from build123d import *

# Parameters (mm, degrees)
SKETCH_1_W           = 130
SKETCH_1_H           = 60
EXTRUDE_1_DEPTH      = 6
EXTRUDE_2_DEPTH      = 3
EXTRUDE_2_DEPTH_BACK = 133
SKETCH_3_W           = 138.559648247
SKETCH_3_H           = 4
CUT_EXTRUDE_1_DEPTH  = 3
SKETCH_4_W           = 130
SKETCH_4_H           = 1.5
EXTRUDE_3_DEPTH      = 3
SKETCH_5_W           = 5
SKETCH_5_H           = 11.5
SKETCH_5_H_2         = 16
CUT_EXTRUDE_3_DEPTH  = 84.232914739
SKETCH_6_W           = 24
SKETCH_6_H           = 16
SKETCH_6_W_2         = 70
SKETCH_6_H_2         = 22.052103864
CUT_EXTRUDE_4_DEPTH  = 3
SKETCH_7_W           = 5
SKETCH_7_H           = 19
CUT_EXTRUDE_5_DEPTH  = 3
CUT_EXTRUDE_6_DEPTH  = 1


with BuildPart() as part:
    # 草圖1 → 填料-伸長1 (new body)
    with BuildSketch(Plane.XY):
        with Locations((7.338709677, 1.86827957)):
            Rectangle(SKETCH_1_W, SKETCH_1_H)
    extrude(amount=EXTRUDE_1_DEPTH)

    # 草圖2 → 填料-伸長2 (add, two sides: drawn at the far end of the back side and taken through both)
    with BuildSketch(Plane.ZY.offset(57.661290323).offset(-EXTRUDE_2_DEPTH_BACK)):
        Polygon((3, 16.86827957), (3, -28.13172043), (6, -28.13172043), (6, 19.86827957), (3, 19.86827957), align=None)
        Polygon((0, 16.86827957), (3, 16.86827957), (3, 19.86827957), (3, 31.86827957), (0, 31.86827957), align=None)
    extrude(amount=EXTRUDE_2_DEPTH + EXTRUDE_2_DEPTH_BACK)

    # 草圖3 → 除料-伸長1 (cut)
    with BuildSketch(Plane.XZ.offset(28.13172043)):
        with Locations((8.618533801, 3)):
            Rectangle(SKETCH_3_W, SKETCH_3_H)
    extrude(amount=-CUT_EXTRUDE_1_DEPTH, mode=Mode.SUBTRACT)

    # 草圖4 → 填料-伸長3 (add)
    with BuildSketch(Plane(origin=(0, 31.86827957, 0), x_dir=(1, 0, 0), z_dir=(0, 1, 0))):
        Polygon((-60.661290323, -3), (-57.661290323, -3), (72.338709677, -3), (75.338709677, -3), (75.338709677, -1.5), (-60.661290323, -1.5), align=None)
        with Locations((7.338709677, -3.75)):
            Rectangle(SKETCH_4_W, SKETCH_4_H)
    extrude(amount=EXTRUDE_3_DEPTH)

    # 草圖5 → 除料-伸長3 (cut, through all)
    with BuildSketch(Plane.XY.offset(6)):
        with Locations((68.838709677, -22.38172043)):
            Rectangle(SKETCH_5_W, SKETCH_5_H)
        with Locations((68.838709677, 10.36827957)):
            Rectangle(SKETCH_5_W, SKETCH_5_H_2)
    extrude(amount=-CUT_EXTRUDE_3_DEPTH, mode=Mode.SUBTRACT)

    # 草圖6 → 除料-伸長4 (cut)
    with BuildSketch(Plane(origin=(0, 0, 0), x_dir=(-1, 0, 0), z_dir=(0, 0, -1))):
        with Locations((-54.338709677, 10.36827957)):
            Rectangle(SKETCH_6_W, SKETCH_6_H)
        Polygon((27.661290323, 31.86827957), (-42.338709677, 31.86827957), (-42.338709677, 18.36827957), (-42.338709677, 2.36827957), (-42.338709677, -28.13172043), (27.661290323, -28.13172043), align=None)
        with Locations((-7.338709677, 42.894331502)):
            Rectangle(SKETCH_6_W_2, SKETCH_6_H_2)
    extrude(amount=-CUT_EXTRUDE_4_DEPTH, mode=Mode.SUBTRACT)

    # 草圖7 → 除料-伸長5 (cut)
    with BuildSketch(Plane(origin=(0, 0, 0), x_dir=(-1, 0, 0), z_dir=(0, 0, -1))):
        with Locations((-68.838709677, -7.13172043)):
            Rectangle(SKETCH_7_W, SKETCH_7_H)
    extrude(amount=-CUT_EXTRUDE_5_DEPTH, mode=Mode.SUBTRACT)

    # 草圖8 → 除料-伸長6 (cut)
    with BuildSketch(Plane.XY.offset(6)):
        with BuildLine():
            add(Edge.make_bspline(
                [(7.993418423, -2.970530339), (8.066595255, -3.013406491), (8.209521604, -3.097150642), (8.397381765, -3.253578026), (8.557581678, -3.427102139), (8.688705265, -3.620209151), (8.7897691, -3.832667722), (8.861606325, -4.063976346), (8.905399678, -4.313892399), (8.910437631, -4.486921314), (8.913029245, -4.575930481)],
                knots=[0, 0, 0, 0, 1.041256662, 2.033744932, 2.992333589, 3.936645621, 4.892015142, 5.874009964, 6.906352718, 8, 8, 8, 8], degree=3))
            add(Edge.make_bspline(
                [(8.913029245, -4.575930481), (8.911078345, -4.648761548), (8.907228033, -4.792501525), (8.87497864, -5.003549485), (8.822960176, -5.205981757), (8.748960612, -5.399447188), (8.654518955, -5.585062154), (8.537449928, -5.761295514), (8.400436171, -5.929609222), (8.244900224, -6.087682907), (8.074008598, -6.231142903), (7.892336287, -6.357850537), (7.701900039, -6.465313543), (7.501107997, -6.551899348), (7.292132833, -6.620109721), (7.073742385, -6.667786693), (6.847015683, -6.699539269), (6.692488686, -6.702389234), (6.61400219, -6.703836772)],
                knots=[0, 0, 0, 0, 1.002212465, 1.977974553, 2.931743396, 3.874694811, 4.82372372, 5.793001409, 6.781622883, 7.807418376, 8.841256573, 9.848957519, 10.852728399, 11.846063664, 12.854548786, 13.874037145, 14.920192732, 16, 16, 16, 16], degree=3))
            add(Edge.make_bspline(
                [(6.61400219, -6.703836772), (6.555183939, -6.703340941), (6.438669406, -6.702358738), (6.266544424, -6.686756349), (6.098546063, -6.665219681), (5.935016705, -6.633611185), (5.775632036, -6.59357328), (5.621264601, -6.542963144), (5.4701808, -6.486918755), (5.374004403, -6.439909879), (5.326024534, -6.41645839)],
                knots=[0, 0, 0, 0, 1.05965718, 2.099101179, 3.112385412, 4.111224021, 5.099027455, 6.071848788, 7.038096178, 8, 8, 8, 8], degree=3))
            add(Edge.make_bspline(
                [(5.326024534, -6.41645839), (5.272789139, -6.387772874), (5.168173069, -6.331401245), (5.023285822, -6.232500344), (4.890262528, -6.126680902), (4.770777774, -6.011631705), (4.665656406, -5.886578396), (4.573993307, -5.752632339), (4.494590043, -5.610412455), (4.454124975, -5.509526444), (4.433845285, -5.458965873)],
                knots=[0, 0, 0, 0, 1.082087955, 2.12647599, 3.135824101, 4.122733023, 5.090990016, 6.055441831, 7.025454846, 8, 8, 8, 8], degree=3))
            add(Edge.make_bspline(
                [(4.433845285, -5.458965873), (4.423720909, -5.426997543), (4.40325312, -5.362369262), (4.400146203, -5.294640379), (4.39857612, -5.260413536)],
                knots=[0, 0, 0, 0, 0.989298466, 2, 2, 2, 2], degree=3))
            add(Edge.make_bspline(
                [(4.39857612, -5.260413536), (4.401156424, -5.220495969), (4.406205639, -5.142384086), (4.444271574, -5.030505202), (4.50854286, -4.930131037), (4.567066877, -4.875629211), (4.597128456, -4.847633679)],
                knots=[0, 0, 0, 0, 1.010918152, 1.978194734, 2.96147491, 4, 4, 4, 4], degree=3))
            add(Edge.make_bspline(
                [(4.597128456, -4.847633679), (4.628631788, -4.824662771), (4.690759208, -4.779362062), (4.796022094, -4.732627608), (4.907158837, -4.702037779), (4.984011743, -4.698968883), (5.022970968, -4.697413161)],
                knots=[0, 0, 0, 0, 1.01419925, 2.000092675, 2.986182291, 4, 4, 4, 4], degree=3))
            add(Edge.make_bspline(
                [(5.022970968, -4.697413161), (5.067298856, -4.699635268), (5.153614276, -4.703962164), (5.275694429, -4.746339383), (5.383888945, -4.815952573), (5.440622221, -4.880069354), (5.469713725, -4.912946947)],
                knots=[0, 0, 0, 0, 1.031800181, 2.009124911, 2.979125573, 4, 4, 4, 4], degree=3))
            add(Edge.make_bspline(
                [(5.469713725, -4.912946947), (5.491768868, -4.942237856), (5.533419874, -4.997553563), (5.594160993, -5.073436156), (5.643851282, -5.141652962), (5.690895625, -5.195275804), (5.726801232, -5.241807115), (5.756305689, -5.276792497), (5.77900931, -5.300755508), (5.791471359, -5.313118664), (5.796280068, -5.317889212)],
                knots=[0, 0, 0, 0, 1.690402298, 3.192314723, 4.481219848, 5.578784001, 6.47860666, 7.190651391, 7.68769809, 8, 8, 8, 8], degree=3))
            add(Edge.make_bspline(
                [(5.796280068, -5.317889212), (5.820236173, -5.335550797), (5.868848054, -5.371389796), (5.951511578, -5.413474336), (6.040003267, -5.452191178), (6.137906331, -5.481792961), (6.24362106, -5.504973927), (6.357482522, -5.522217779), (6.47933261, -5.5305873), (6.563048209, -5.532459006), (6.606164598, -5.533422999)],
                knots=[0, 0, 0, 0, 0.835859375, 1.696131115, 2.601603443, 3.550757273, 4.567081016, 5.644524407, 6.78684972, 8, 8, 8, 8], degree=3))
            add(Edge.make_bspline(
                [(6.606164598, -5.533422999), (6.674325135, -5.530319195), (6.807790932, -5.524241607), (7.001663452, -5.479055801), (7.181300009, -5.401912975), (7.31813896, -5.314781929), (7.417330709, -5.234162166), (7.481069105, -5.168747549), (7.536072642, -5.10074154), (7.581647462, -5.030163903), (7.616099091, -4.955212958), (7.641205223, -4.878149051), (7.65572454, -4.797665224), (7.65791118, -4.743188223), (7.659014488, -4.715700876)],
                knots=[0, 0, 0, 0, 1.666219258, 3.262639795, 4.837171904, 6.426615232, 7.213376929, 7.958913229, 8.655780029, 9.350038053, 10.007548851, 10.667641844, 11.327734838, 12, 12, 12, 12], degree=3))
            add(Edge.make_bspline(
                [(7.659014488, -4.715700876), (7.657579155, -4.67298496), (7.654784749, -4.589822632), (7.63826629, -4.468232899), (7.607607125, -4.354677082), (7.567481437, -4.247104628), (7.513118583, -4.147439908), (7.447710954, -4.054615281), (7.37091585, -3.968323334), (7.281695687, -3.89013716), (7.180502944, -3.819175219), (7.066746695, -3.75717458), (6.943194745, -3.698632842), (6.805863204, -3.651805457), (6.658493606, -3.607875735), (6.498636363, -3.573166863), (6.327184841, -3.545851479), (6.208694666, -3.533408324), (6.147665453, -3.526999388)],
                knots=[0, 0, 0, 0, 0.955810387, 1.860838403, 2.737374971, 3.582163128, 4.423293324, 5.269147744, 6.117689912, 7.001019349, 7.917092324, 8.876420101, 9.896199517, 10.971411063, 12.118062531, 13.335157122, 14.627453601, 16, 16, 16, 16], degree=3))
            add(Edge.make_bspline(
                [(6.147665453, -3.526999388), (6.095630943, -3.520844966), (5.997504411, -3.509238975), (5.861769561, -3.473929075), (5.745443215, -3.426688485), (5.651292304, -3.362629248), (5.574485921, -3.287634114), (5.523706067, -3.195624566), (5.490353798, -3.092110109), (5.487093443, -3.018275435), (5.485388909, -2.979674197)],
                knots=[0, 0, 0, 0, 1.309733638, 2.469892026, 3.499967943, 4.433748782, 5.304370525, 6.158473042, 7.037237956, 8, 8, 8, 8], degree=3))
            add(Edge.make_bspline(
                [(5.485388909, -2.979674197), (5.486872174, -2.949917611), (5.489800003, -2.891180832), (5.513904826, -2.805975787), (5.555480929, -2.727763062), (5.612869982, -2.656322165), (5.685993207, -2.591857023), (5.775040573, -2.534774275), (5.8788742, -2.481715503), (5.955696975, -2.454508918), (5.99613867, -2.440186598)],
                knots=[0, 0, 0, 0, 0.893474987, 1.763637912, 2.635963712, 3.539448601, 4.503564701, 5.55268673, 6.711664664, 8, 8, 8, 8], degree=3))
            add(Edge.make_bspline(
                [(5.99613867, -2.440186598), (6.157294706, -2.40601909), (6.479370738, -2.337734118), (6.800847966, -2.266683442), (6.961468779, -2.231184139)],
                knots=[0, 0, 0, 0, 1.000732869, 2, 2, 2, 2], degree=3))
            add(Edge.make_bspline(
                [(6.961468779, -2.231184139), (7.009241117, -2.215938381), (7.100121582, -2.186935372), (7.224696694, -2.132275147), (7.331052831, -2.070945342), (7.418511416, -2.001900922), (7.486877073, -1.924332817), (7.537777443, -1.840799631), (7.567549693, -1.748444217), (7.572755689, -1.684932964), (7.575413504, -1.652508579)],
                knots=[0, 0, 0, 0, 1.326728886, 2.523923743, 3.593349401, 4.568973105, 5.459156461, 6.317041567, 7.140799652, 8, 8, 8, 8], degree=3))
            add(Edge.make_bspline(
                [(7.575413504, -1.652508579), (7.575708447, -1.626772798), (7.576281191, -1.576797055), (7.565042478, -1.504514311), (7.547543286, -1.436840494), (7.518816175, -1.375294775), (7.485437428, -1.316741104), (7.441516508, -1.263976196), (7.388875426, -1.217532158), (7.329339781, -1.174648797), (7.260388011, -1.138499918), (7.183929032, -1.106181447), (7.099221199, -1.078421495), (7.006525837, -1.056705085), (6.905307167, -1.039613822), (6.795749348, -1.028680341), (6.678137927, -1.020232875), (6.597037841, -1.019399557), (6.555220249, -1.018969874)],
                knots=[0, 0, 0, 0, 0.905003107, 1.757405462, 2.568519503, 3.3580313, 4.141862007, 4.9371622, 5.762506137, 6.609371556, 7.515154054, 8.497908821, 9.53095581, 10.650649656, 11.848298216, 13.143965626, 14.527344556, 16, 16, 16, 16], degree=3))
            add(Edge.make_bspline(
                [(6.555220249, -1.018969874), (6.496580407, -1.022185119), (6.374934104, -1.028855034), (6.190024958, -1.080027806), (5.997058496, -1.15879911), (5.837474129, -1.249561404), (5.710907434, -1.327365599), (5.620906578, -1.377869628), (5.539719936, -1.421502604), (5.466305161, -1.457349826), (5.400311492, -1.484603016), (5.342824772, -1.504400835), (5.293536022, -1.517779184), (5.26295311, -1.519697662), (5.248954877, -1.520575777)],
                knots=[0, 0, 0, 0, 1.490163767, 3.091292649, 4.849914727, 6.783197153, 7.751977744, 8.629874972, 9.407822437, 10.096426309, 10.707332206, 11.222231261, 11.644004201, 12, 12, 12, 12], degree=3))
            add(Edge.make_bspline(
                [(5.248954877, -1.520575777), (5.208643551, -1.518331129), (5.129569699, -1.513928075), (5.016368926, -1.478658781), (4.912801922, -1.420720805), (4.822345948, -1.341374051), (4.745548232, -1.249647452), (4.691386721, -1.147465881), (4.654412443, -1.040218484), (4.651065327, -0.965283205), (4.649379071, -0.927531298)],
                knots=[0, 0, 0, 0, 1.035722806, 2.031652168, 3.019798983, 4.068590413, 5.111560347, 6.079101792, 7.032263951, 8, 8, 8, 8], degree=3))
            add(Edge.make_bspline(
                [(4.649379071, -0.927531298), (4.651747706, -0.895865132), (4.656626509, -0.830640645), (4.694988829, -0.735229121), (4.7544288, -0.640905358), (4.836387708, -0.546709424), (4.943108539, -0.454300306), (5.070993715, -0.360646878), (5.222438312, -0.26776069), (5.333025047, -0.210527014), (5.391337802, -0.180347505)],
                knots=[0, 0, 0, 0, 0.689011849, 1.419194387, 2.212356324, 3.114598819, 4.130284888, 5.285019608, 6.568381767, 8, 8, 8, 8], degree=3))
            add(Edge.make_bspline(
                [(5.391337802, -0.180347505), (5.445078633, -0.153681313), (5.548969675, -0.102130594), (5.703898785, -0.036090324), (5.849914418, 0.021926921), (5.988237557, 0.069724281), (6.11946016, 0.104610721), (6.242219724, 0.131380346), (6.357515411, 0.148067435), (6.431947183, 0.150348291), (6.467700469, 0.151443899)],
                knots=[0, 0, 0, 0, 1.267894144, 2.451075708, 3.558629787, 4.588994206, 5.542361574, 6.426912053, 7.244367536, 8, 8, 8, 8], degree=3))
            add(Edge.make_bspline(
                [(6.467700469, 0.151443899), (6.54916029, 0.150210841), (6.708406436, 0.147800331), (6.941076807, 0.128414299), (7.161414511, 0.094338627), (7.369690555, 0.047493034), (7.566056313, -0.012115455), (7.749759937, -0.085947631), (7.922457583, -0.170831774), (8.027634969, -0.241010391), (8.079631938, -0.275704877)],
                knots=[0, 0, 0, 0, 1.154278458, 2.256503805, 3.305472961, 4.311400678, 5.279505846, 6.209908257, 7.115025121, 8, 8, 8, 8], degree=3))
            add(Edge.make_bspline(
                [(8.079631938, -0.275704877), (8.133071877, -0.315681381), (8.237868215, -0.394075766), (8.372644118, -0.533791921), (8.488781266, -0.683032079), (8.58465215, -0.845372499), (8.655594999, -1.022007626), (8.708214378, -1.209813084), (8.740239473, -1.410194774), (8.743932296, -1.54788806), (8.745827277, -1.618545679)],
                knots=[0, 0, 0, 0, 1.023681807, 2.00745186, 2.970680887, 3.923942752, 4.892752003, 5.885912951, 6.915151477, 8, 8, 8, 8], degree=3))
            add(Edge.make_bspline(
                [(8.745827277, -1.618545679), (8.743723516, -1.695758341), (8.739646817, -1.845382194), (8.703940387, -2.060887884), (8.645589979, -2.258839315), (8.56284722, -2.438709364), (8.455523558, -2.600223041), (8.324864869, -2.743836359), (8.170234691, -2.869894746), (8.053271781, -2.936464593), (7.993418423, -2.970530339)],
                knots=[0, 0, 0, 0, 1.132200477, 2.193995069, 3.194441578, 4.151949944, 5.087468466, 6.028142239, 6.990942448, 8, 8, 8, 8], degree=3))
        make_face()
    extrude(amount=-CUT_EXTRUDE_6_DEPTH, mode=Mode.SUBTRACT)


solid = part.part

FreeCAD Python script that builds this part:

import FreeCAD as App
import Part
import Sketcher

V = App.Vector

doc = App.newDocument("Part")
body = doc.addObject("PartDesign::Body", "Body")

# Sketch on XY plane
sketch1 = body.newObject("Sketcher::SketchObject", "Sketch")
sketch1.AttachmentSupport = (doc.getObject("XY_Plane"), [""])
sketch1.MapMode = "FlatFace"
sketch1.addGeometry([
    Part.LineSegment(V(-58, 32, 0), V(-58, -28, 0)),
    Part.LineSegment(V(-58, -28, 0), V(72, -28, 0)),
    Part.LineSegment(V(72, -28, 0), V(72, 32, 0)),
    Part.LineSegment(V(72, 32, 0), V(-58, 32, 0)),
], False)
sketch1.addConstraint([
    Sketcher.Constraint("Coincident", 0, 2, 1, 1),
    Sketcher.Constraint("Coincident", 1, 2, 2, 1),
    Sketcher.Constraint("Coincident", 2, 2, 3, 1),
    Sketcher.Constraint("Coincident", 3, 2, 0, 1),
    Sketcher.Constraint("Vertical", 0),
    Sketcher.Constraint("Horizontal", 1),
    Sketcher.Constraint("Vertical", 2),
    Sketcher.Constraint("Horizontal", 3),
    Sketcher.Constraint("DistanceX", 1, 1, 1, 2, 130.0),
    Sketcher.Constraint("DistanceY", 0, 2, 0, 1, 60.0),
    Sketcher.Constraint("DistanceX", 0, 2, -1, 1, 57.66129),
    Sketcher.Constraint("DistanceY", 0, 2, -1, 1, 28.13172),
])
pad1 = body.newObject("PartDesign::Pad", "Pad")
pad1.Profile = sketch1
pad1.Length = 6

# Sketch on YZ plane
sketch2 = body.newObject("Sketcher::SketchObject", "Sketch001")
sketch2.AttachmentSupport = (doc.getObject("YZ_Plane"), [""])
sketch2.MapMode = "FlatFace"
sketch2.AttachmentOffset = App.Placement(V(0, 0, -57.66129), App.Rotation())
sketch2.addGeometry([
    Part.LineSegment(V(-28.1, 3, 0), V(-28.1, 6, 0)),  # 0
    Part.LineSegment(V(-28.1, 6, 0), V(19.9, 6, 0)),  # 1
    Part.LineSegment(V(19.9, 6, 0), V(19.9, 3, 0)),  # 2
    Part.LineSegment(V(19.9, 3, 0), V(31.9, 3, 0)),  # 3
    Part.LineSegment(V(31.9, 3, 0), V(31.9, 0, 0)),  # 4
    Part.LineSegment(V(31.9, 0, 0), V(16.9, 0, 0)),  # 5
    Part.LineSegment(V(16.9, 0, 0), V(16.9, 3, 0)),  # 6
    Part.LineSegment(V(16.9, 3, 0), V(-28.1, 3, 0)),  # 7
], False)
sketch2.addConstraint([
    Sketcher.Constraint("Coincident", 0, 2, 1, 1),
    Sketcher.Constraint("Coincident", 1, 2, 2, 1),
    Sketcher.Constraint("Coincident", 2, 2, 3, 1),
    Sketcher.Constraint("Coincident", 3, 2, 4, 1),
    Sketcher.Constraint("Coincident", 4, 2, 5, 1),
    Sketcher.Constraint("Coincident", 5, 2, 6, 1),
    Sketcher.Constraint("Coincident", 6, 2, 7, 1),
    Sketcher.Constraint("Coincident", 7, 2, 0, 1),
    Sketcher.Constraint("Vertical", 0),
    Sketcher.Constraint("Horizontal", 1),
    Sketcher.Constraint("Vertical", 2),
    Sketcher.Constraint("Horizontal", 3),
    Sketcher.Constraint("Vertical", 4),
    Sketcher.Constraint("Horizontal", 5),
    Sketcher.Constraint("Vertical", 6),
    Sketcher.Constraint("Horizontal", 7),
    Sketcher.Constraint("PointOnObject", 4, 2, -1),
    Sketcher.Constraint("Horizontal", 3, 2, 6, 2),
    Sketcher.Constraint("Equal", 2, 4),
    Sketcher.Constraint("DistanceX", 1, 1, 1, 2, 48.0),
    Sketcher.Constraint("DistanceX", 3, 1, 3, 2, 12.0),
    Sketcher.Constraint("DistanceX", 5, 2, 5, 1, 15.0),
    Sketcher.Constraint("DistanceY", 0, 1, 0, 2, 3.0),
    Sketcher.Constraint("DistanceX", 0, 2, -1, 1, 28.13172),
])
pad2 = body.newObject("PartDesign::Pad", "Pad001")
pad2.Profile = sketch2
pad2.Type = "TwoLengths"
pad2.Length = 3
pad2.Length2 = 133
pad2.Reversed = True

# Sketch on XZ plane
sketch3 = body.newObject("Sketcher::SketchObject", "Sketch002")
sketch3.AttachmentSupport = (doc.getObject("XZ_Plane"), [""])
sketch3.MapMode = "FlatFace"
sketch3.AttachmentOffset = App.Placement(V(0, 0, 28.13172), App.Rotation())
sketch3.addGeometry([
    Part.LineSegment(V(-60.7, 5, 0), V(-60.7, 1, 0)),
    Part.LineSegment(V(-60.7, 1, 0), V(77.9, 1, 0)),
    Part.LineSegment(V(77.9, 1, 0), V(77.9, 5, 0)),
    Part.LineSegment(V(77.9, 5, 0), V(-60.7, 5, 0)),
], False)
sketch3.addConstraint([
    Sketcher.Constraint("Coincident", 0, 2, 1, 1),
    Sketcher.Constraint("Coincident", 1, 2, 2, 1),
    Sketcher.Constraint("Coincident", 2, 2, 3, 1),
    Sketcher.Constraint("Coincident", 3, 2, 0, 1),
    Sketcher.Constraint("Vertical", 0),
    Sketcher.Constraint("Horizontal", 1),
    Sketcher.Constraint("Vertical", 2),
    Sketcher.Constraint("Horizontal", 3),
    Sketcher.Constraint("DistanceY", 0, 2, 0, 1, 4.0),
    Sketcher.Constraint("DistanceY", -1, 1, 0, 2, 1.0),
    Sketcher.Constraint("DistanceX", 1, 1, 1, 2, 138.559648),
    Sketcher.Constraint("DistanceX", 0, 2, -1, 1, 60.66129),
])
pocket1 = body.newObject("PartDesign::Pocket", "Pocket")
pocket1.Profile = sketch3
pocket1.Length = 3

# Sketch on XZ plane
sketch4 = body.newObject("Sketcher::SketchObject", "Sketch003")
sketch4.AttachmentSupport = (doc.getObject("XZ_Plane"), [""])
sketch4.MapMode = "FlatFace"
sketch4.AttachmentOffset = App.Placement(V(0, 0, -31.86828), App.Rotation())
sketch4.addGeometry([
    Part.LineSegment(V(-60.7, 3, 0), V(-57.7, 3, 0)),  # 0
    Part.LineSegment(V(-57.7, 3, 0), V(-57.7, 4.5, 0)),  # 1
    Part.LineSegment(V(-57.7, 4.5, 0), V(72.3, 4.5, 0)),  # 2
    Part.LineSegment(V(72.3, 4.5, 0), V(72.3, 3, 0)),  # 3
    Part.LineSegment(V(72.3, 3, 0), V(75.3, 3, 0)),  # 4
    Part.LineSegment(V(75.3, 3, 0), V(75.3, 1.5, 0)),  # 5
    Part.LineSegment(V(75.3, 1.5, 0), V(-60.7, 1.5, 0)),  # 6
    Part.LineSegment(V(-60.7, 1.5, 0), V(-60.7, 3, 0)),  # 7
], False)
sketch4.addConstraint([
    Sketcher.Constraint("Coincident", 0, 2, 1, 1),
    Sketcher.Constraint("Coincident", 1, 2, 2, 1),
    Sketcher.Constraint("Coincident", 2, 2, 3, 1),
    Sketcher.Constraint("Coincident", 3, 2, 4, 1),
    Sketcher.Constraint("Coincident", 4, 2, 5, 1),
    Sketcher.Constraint("Coincident", 5, 2, 6, 1),
    Sketcher.Constraint("Coincident", 6, 2, 7, 1),
    Sketcher.Constraint("Coincident", 7, 2, 0, 1),
    Sketcher.Constraint("Horizontal", 0),
    Sketcher.Constraint("Vertical", 1),
    Sketcher.Constraint("Horizontal", 2),
    Sketcher.Constraint("Vertical", 3),
    Sketcher.Constraint("Horizontal", 4),
    Sketcher.Constraint("Vertical", 5),
    Sketcher.Constraint("Horizontal", 6),
    Sketcher.Constraint("Vertical", 7),
    Sketcher.Constraint("Horizontal", 0, 2, 3, 2),
    Sketcher.Constraint("Equal", 0, 4),
    Sketcher.Constraint("Equal", 3, 5),
    Sketcher.Constraint("DistanceX", 0, 1, 0, 2, 3.0),
    Sketcher.Constraint("DistanceX", 2, 1, 2, 2, 130.0),
    Sketcher.Constraint("DistanceY", 1, 1, 1, 2, 1.5),
    Sketcher.Constraint("DistanceY", -1, 1, 0, 2, 3.0),
    Sketcher.Constraint("DistanceX", 0, 2, -1, 1, 57.66129),
])
pad3 = body.newObject("PartDesign::Pad", "Pad002")
pad3.Profile = sketch4
pad3.Length = 3
pad3.Reversed = True

# Sketch on XY plane
sketch5 = body.newObject("Sketcher::SketchObject", "Sketch004")
sketch5.AttachmentSupport = (doc.getObject("XY_Plane"), [""])
sketch5.MapMode = "FlatFace"
sketch5.AttachmentOffset = App.Placement(V(0, 0, 6), App.Rotation())
sketch5.addGeometry([
    Part.LineSegment(V(66, -17, 0), V(66, -28, 0)),  # 0
    Part.LineSegment(V(66, -28, 0), V(71, -28, 0)),  # 1
    Part.LineSegment(V(71, -28, 0), V(71, -17, 0)),  # 2
    Part.LineSegment(V(71, -17, 0), V(66, -17, 0)),  # 3
    Part.LineSegment(V(66, 18, 0), V(66, 2, 0)),  # 4
    Part.LineSegment(V(66, 2, 0), V(71, 2, 0)),  # 5
    Part.LineSegment(V(71, 2, 0), V(71, 18, 0)),  # 6
    Part.LineSegment(V(71, 18, 0), V(66, 18, 0)),  # 7
], False)
sketch5.addConstraint([
    Sketcher.Constraint("Coincident", 0, 2, 1, 1),
    Sketcher.Constraint("Coincident", 1, 2, 2, 1),
    Sketcher.Constraint("Coincident", 2, 2, 3, 1),
    Sketcher.Constraint("Coincident", 3, 2, 0, 1),
    Sketcher.Constraint("Coincident", 4, 2, 5, 1),
    Sketcher.Constraint("Coincident", 5, 2, 6, 1),
    Sketcher.Constraint("Coincident", 6, 2, 7, 1),
    Sketcher.Constraint("Coincident", 7, 2, 4, 1),
    Sketcher.Constraint("Vertical", 0),
    Sketcher.Constraint("Horizontal", 1),
    Sketcher.Constraint("Vertical", 2),
    Sketcher.Constraint("Horizontal", 3),
    Sketcher.Constraint("Vertical", 4),
    Sketcher.Constraint("Horizontal", 5),
    Sketcher.Constraint("Vertical", 6),
    Sketcher.Constraint("Horizontal", 7),
    Sketcher.Constraint("Vertical", 3, 2, 4, 2),
    Sketcher.Constraint("Vertical", 2, 2, 5, 2),
    Sketcher.Constraint("DistanceX", 1, 1, 1, 2, 5.0),
    Sketcher.Constraint("DistanceY", 4, 2, 4, 1, 16.0),
    Sketcher.Constraint("DistanceY", 0, 2, 0, 1, 11.5),
    Sketcher.Constraint("DistanceY", 3, 2, 4, 2, 19.0),
    Sketcher.Constraint("DistanceX", -1, 1, 0, 2, 66.33871),
    Sketcher.Constraint("DistanceY", 0, 2, -1, 1, 28.13172),
])
pocket2 = body.newObject("PartDesign::Pocket", "Pocket001")
pocket2.Profile = sketch5
pocket2.Type = "ThroughAll"

# Sketch on XY plane
sketch6 = body.newObject("Sketcher::SketchObject", "Sketch005")
sketch6.AttachmentSupport = (doc.getObject("XY_Plane"), [""])
sketch6.MapMode = "FlatFace"
sketch6.addGeometry([
    Part.LineSegment(V(66, 18, 0), V(66, 2, 0)),  # 0
    Part.LineSegment(V(66, 2, 0), V(42, 2, 0)),  # 1
    Part.LineSegment(V(42, 2, 0), V(42, -28, 0)),  # 2
    Part.LineSegment(V(42, -28, 0), V(-28, -28, 0)),  # 3
    Part.LineSegment(V(-28, -28, 0), V(-28, 54, 0)),  # 4
    Part.LineSegment(V(-28, 54, 0), V(42, 54, 0)),  # 5
    Part.LineSegment(V(42, 54, 0), V(42, 18, 0)),  # 6
    Part.LineSegment(V(42, 18, 0), V(66, 18, 0)),  # 7
], False)
sketch6.addConstraint([
    Sketcher.Constraint("Coincident", 0, 2, 1, 1),
    Sketcher.Constraint("Coincident", 1, 2, 2, 1),
    Sketcher.Constraint("Coincident", 2, 2, 3, 1),
    Sketcher.Constraint("Coincident", 3, 2, 4, 1),
    Sketcher.Constraint("Coincident", 4, 2, 5, 1),
    Sketcher.Constraint("Coincident", 5, 2, 6, 1),
    Sketcher.Constraint("Coincident", 6, 2, 7, 1),
    Sketcher.Constraint("Coincident", 7, 2, 0, 1),
    Sketcher.Constraint("Vertical", 0),
    Sketcher.Constraint("Horizontal", 1),
    Sketcher.Constraint("Vertical", 2),
    Sketcher.Constraint("Horizontal", 3),
    Sketcher.Constraint("Vertical", 4),
    Sketcher.Constraint("Horizontal", 5),
    Sketcher.Constraint("Vertical", 6),
    Sketcher.Constraint("Horizontal", 7),
    Sketcher.Constraint("Vertical", 2, 2, 5, 2),
    Sketcher.Constraint("DistanceX", 1, 2, 1, 1, 24.0),
    Sketcher.Constraint("DistanceX", 3, 2, 3, 1, 70.0),
    Sketcher.Constraint("DistanceY", 0, 2, 0, 1, 16.0),
    Sketcher.Constraint("DistanceY", 2, 2, 2, 1, 30.5),
    Sketcher.Constraint("DistanceY", 4, 1, 4, 2, 82.052104),
    Sketcher.Constraint("DistanceX", -1, 1, 0, 2, 66.33871),
    Sketcher.Constraint("DistanceY", -1, 1, 0, 2, 2.36828),
])
pocket3 = body.newObject("PartDesign::Pocket", "Pocket002")
pocket3.Profile = sketch6
pocket3.Length = 3
pocket3.Reversed = True

# Sketch on XY plane
sketch7 = body.newObject("Sketcher::SketchObject", "Sketch006")
sketch7.AttachmentSupport = (doc.getObject("XY_Plane"), [""])
sketch7.MapMode = "FlatFace"
sketch7.addGeometry([
    Part.LineSegment(V(71, 2, 0), V(71, -17, 0)),
    Part.LineSegment(V(71, -17, 0), V(66, -17, 0)),
    Part.LineSegment(V(66, -17, 0), V(66, 2, 0)),
    Part.LineSegment(V(66, 2, 0), V(71, 2, 0)),
], False)
sketch7.addConstraint([
    Sketcher.Constraint("Coincident", 0, 2, 1, 1),
    Sketcher.Constraint("Coincident", 1, 2, 2, 1),
    Sketcher.Constraint("Coincident", 2, 2, 3, 1),
    Sketcher.Constraint("Coincident", 3, 2, 0, 1),
    Sketcher.Constraint("Vertical", 0),
    Sketcher.Constraint("Horizontal", 1),
    Sketcher.Constraint("Vertical", 2),
    Sketcher.Constraint("Horizontal", 3),
    Sketcher.Constraint("DistanceX", 1, 2, 1, 1, 5.0),
    Sketcher.Constraint("DistanceY", 0, 2, 0, 1, 19.0),
    Sketcher.Constraint("DistanceX", -1, 1, 0, 2, 71.33871),
    Sketcher.Constraint("DistanceY", 0, 2, -1, 1, 16.63172),
])
pocket4 = body.newObject("PartDesign::Pocket", "Pocket003")
pocket4.Profile = sketch7
pocket4.Length = 3
pocket4.Reversed = True

# Sketch on XY plane
sketch8 = body.newObject("Sketcher::SketchObject", "Sketch007")
sketch8.AttachmentSupport = (doc.getObject("XY_Plane"), [""])
sketch8.MapMode = "FlatFace"
sketch8.AttachmentOffset = App.Placement(V(0, 0, 6), App.Rotation())
sketch8.addGeometry([
    Part.BSplineCurve([V(7.993418, -2.97053, 0), V(8.066595, -3.013406, 0), V(8.209522, -3.097151, 0), V(8.397382, -3.253578, 0), V(8.557582, -3.427102, 0), V(8.688705, -3.620209, 0), V(8.789769, -3.832668, 0), V(8.861606, -4.063976, 0), V(8.9054, -4.313892, 0), V(8.910438, -4.486921, 0), V(8.913029, -4.57593, 0)], [4, 1, 1, 1, 1, 1, 1, 1, 4], [0, 1.041256662, 2.033744932, 2.992333589, 3.936645621, 4.892015142, 5.874009964, 6.906352718, 8], False, 3, [1, 1, 1, 1, 1, 1, 1, 1, 1, 1, 1], False),  # 0
    Part.BSplineCurve([V(8.745827, -1.618546, 0), V(8.743724, -1.695758, 0), V(8.739647, -1.845382, 0), V(8.70394, -2.060888, 0), V(8.64559, -2.258839, 0), V(8.562847, -2.438709, 0), V(8.455524, -2.600223, 0), V(8.324865, -2.743836, 0), V(8.170235, -2.869895, 0), V(8.053272, -2.936465, 0), V(7.993418, -2.97053, 0)], [4, 1, 1, 1, 1, 1, 1, 1, 4], [0, 1.132200477, 2.193995069, 3.194441578, 4.151949944, 5.087468466, 6.028142239, 6.990942448, 8], False, 3, [1, 1, 1, 1, 1, 1, 1, 1, 1, 1, 1], False),  # 1
    Part.BSplineCurve([V(8.079632, -0.275705, 0), V(8.133072, -0.315681, 0), V(8.237868, -0.394076, 0), V(8.372644, -0.533792, 0), V(8.488781, -0.683032, 0), V(8.584652, -0.845372, 0), V(8.655595, -1.022008, 0), V(8.708214, -1.209813, 0), V(8.740239, -1.410195, 0), V(8.743932, -1.547888, 0), V(8.745827, -1.618546, 0)], [4, 1, 1, 1, 1, 1, 1, 1, 4], [0, 1.023681807, 2.00745186, 2.970680887, 3.923942752, 4.892752003, 5.885912951, 6.915151477, 8], False, 3, [1, 1, 1, 1, 1, 1, 1, 1, 1, 1, 1], False),  # 2
    Part.BSplineCurve([V(6.4677, 0.151444, 0), V(6.54916, 0.150211, 0), V(6.708406, 0.1478, 0), V(6.941077, 0.128414, 0), V(7.161415, 0.094339, 0), V(7.369691, 0.047493, 0), V(7.566056, -0.012115, 0), V(7.74976, -0.085948, 0), V(7.922458, -0.170832, 0), V(8.027635, -0.24101, 0), V(8.079632, -0.275705, 0)], [4, 1, 1, 1, 1, 1, 1, 1, 4], [0, 1.154278458, 2.256503805, 3.305472961, 4.311400678, 5.279505846, 6.209908257, 7.115025121, 8], False, 3, [1, 1, 1, 1, 1, 1, 1, 1, 1, 1, 1], False),  # 3
    Part.BSplineCurve([V(5.391338, -0.180348, 0), V(5.445079, -0.153681, 0), V(5.54897, -0.102131, 0), V(5.703899, -0.03609, 0), V(5.849914, 0.021927, 0), V(5.988238, 0.069724, 0), V(6.11946, 0.104611, 0), V(6.24222, 0.13138, 0), V(6.357515, 0.148067, 0), V(6.431947, 0.150348, 0), V(6.4677, 0.151444, 0)], [4, 1, 1, 1, 1, 1, 1, 1, 4], [0, 1.267894144, 2.451075708, 3.558629787, 4.588994206, 5.542361574, 6.426912053, 7.244367536, 8], False, 3, [1, 1, 1, 1, 1, 1, 1, 1, 1, 1, 1], False),  # 4
    Part.BSplineCurve([V(4.649379, -0.927531, 0), V(4.651748, -0.895865, 0), V(4.656627, -0.830641, 0), V(4.694989, -0.735229, 0), V(4.754429, -0.640905, 0), V(4.836388, -0.546709, 0), V(4.943109, -0.4543, 0), V(5.070994, -0.360647, 0), V(5.222438, -0.267761, 0), V(5.333025, -0.210527, 0), V(5.391338, -0.180348, 0)], [4, 1, 1, 1, 1, 1, 1, 1, 4], [0, 0.689011849, 1.419194387, 2.212356324, 3.114598819, 4.130284888, 5.285019608, 6.568381767, 8], False, 3, [1, 1, 1, 1, 1, 1, 1, 1, 1, 1, 1], False),  # 5
    Part.BSplineCurve([V(5.248955, -1.520576, 0), V(5.208644, -1.518331, 0), V(5.12957, -1.513928, 0), V(5.016369, -1.478659, 0), V(4.912802, -1.420721, 0), V(4.822346, -1.341374, 0), V(4.745548, -1.249647, 0), V(4.691387, -1.147466, 0), V(4.654412, -1.040218, 0), V(4.651065, -0.965283, 0), V(4.649379, -0.927531, 0)], [4, 1, 1, 1, 1, 1, 1, 1, 4], [0, 1.035722806, 2.031652168, 3.019798983, 4.068590413, 5.111560347, 6.079101792, 7.032263951, 8], False, 3, [1, 1, 1, 1, 1, 1, 1, 1, 1, 1, 1], False),  # 6
    Part.BSplineCurve([V(6.55522, -1.01897, 0), V(6.49658, -1.022185, 0), V(6.374934, -1.028855, 0), V(6.190025, -1.080028, 0), V(5.997058, -1.158799, 0), V(5.837474, -1.249561, 0), V(5.710907, -1.327366, 0), V(5.620907, -1.37787, 0), V(5.53972, -1.421503, 0), V(5.466305, -1.45735, 0), V(5.400311, -1.484603, 0), V(5.342825, -1.504401, 0), V(5.293536, -1.517779, 0), V(5.262953, -1.519698, 0), V(5.248955, -1.520576, 0)], [4, 1, 1, 1, 1, 1, 1, 1, 1, 1, 1, 1, 4], [0, 1.490163767, 3.091292649, 4.849914727, 6.783197153, 7.751977744, 8.629874972, 9.407822437, 10.096426309, 10.707332206, 11.222231261, 11.644004201, 12], False, 3, [1, 1, 1, 1, 1, 1, 1, 1, 1, 1, 1, 1, 1, 1, 1], False),  # 7
    Part.BSplineCurve([V(7.575414, -1.652509, 0), V(7.575708, -1.626773, 0), V(7.576281, -1.576797, 0), V(7.565042, -1.504514, 0), V(7.547543, -1.43684, 0), V(7.518816, -1.375295, 0), V(7.485437, -1.316741, 0), V(7.441517, -1.263976, 0), V(7.388875, -1.217532, 0), V(7.32934, -1.174649, 0), V(7.260388, -1.1385, 0), V(7.183929, -1.106181, 0), V(7.099221, -1.078421, 0), V(7.006526, -1.056705, 0), V(6.905307, -1.039614, 0), V(6.795749, -1.02868, 0), V(6.678138, -1.020233, 0), V(6.597038, -1.0194, 0), V(6.55522, -1.01897, 0)], [4, 1, 1, 1, 1, 1, 1, 1, 1, 1, 1, 1, 1, 1, 1, 1, 4], [0, 0.905003107, 1.757405462, 2.568519503, 3.3580313, 4.141862007, 4.9371622, 5.762506137, 6.609371556, 7.515154054, 8.497908821, 9.53095581, 10.650649656, 11.848298216, 13.143965626, 14.527344556, 16], False, 3, [1, 1, 1, 1, 1, 1, 1, 1, 1, 1, 1, 1, 1, 1, 1, 1, 1, 1, 1], False),  # 8
    Part.BSplineCurve([V(6.961469, -2.231184, 0), V(7.009241, -2.215938, 0), V(7.100122, -2.186935, 0), V(7.224697, -2.132275, 0), V(7.331053, -2.070945, 0), V(7.418511, -2.001901, 0), V(7.486877, -1.924333, 0), V(7.537777, -1.8408, 0), V(7.56755, -1.748444, 0), V(7.572756, -1.684933, 0), V(7.575414, -1.652509, 0)], [4, 1, 1, 1, 1, 1, 1, 1, 4], [0, 1.326728886, 2.523923743, 3.593349401, 4.568973105, 5.459156461, 6.317041567, 7.140799652, 8], False, 3, [1, 1, 1, 1, 1, 1, 1, 1, 1, 1, 1], False),  # 9
    Part.BSplineCurve([V(5.996139, -2.440187, 0), V(6.157295, -2.406019, 0), V(6.479371, -2.337734, 0), V(6.800848, -2.266683, 0), V(6.961469, -2.231184, 0)], [4, 1, 4], [0, 1.000732869, 2], False, 3, [1, 1, 1, 1, 1], False),  # 10
    Part.BSplineCurve([V(5.485389, -2.979674, 0), V(5.486872, -2.949918, 0), V(5.4898, -2.891181, 0), V(5.513905, -2.805976, 0), V(5.555481, -2.727763, 0), V(5.61287, -2.656322, 0), V(5.685993, -2.591857, 0), V(5.775041, -2.534774, 0), V(5.878874, -2.481716, 0), V(5.955697, -2.454509, 0), V(5.996139, -2.440187, 0)], [4, 1, 1, 1, 1, 1, 1, 1, 4], [0, 0.893474987, 1.763637912, 2.635963712, 3.539448601, 4.503564701, 5.55268673, 6.711664664, 8], False, 3, [1, 1, 1, 1, 1, 1, 1, 1, 1, 1, 1], False),  # 11
    Part.BSplineCurve([V(6.147665, -3.526999, 0), V(6.095631, -3.520845, 0), V(5.997504, -3.509239, 0), V(5.86177, -3.473929, 0), V(5.745443, -3.426688, 0), V(5.651292, -3.362629, 0), V(5.574486, -3.287634, 0), V(5.523706, -3.195625, 0), V(5.490354, -3.09211, 0), V(5.487093, -3.018275, 0), V(5.485389, -2.979674, 0)], [4, 1, 1, 1, 1, 1, 1, 1, 4], [0, 1.309733638, 2.469892026, 3.499967943, 4.433748782, 5.304370525, 6.158473042, 7.037237956, 8], False, 3, [1, 1, 1, 1, 1, 1, 1, 1, 1, 1, 1], False),  # 12
    Part.BSplineCurve([V(7.659014, -4.715701, 0), V(7.657579, -4.672985, 0), V(7.654785, -4.589823, 0), V(7.638266, -4.468233, 0), V(7.607607, -4.354677, 0), V(7.567481, -4.247105, 0), V(7.513119, -4.14744, 0), V(7.447711, -4.054615, 0), V(7.370916, -3.968323, 0), V(7.281696, -3.890137, 0), V(7.180503, -3.819175, 0), V(7.066747, -3.757175, 0), V(6.943195, -3.698633, 0), V(6.805863, -3.651805, 0), V(6.658494, -3.607876, 0), V(6.498636, -3.573167, 0), V(6.327185, -3.545851, 0), V(6.208695, -3.533408, 0), V(6.147665, -3.526999, 0)], [4, 1, 1, 1, 1, 1, 1, 1, 1, 1, 1, 1, 1, 1, 1, 1, 4], [0, 0.955810387, 1.860838403, 2.737374971, 3.582163128, 4.423293324, 5.269147744, 6.117689912, 7.001019349, 7.917092324, 8.876420101, 9.896199517, 10.971411063, 12.118062531, 13.335157122, 14.627453601, 16], False, 3, [1, 1, 1, 1, 1, 1, 1, 1, 1, 1, 1, 1, 1, 1, 1, 1, 1, 1, 1], False),  # 13
    Part.BSplineCurve([V(6.606165, -5.533423, 0), V(6.674325, -5.530319, 0), V(6.807791, -5.524242, 0), V(7.001663, -5.479056, 0), V(7.1813, -5.401913, 0), V(7.318139, -5.314782, 0), V(7.417331, -5.234162, 0), V(7.481069, -5.168748, 0), V(7.536073, -5.100742, 0), V(7.581647, -5.030164, 0), V(7.616099, -4.955213, 0), V(7.641205, -4.878149, 0), V(7.655725, -4.797665, 0), V(7.657911, -4.743188, 0), V(7.659014, -4.715701, 0)], [4, 1, 1, 1, 1, 1, 1, 1, 1, 1, 1, 1, 4], [0, 1.666219258, 3.262639795, 4.837171904, 6.426615232, 7.213376929, 7.958913229, 8.655780029, 9.350038053, 10.007548851, 10.667641844, 11.327734838, 12], False, 3, [1, 1, 1, 1, 1, 1, 1, 1, 1, 1, 1, 1, 1, 1, 1], False),  # 14
    Part.BSplineCurve([V(5.79628, -5.317889, 0), V(5.820236, -5.335551, 0), V(5.868848, -5.37139, 0), V(5.951512, -5.413474, 0), V(6.040003, -5.452191, 0), V(6.137906, -5.481793, 0), V(6.243621, -5.504974, 0), V(6.357483, -5.522218, 0), V(6.479333, -5.530587, 0), V(6.563048, -5.532459, 0), V(6.606165, -5.533423, 0)], [4, 1, 1, 1, 1, 1, 1, 1, 4], [0, 0.835859375, 1.696131115, 2.601603443, 3.550757273, 4.567081016, 5.644524407, 6.78684972, 8], False, 3, [1, 1, 1, 1, 1, 1, 1, 1, 1, 1, 1], False),  # 15
    Part.BSplineCurve([V(5.469714, -4.912947, 0), V(5.491769, -4.942238, 0), V(5.53342, -4.997554, 0), V(5.594161, -5.073436, 0), V(5.643851, -5.141653, 0), V(5.690896, -5.195276, 0), V(5.726801, -5.241807, 0), V(5.756306, -5.276792, 0), V(5.779009, -5.300756, 0), V(5.791471, -5.313119, 0), V(5.79628, -5.317889, 0)], [4, 1, 1, 1, 1, 1, 1, 1, 4], [0, 1.690402298, 3.192314723, 4.481219848, 5.578784001, 6.47860666, 7.190651391, 7.68769809, 8], False, 3, [1, 1, 1, 1, 1, 1, 1, 1, 1, 1, 1], False),  # 16
    Part.BSplineCurve([V(5.022971, -4.697413, 0), V(5.067299, -4.699635, 0), V(5.153614, -4.703962, 0), V(5.275694, -4.746339, 0), V(5.383889, -4.815953, 0), V(5.440622, -4.880069, 0), V(5.469714, -4.912947, 0)], [4, 1, 1, 1, 4], [0, 1.031800181, 2.009124911, 2.979125573, 4], False, 3, [1, 1, 1, 1, 1, 1, 1], False),  # 17
    Part.BSplineCurve([V(4.597128, -4.847634, 0), V(4.628632, -4.824663, 0), V(4.690759, -4.779362, 0), V(4.796022, -4.732628, 0), V(4.907159, -4.702038, 0), V(4.984012, -4.698969, 0), V(5.022971, -4.697413, 0)], [4, 1, 1, 1, 4], [0, 1.01419925, 2.000092675, 2.986182291, 4], False, 3, [1, 1, 1, 1, 1, 1, 1], False),  # 18
    Part.BSplineCurve([V(4.398576, -5.260414, 0), V(4.401156, -5.220496, 0), V(4.406206, -5.142384, 0), V(4.444272, -5.030505, 0), V(4.508543, -4.930131, 0), V(4.567067, -4.875629, 0), V(4.597128, -4.847634, 0)], [4, 1, 1, 1, 4], [0, 1.010918152, 1.978194734, 2.96147491, 4], False, 3, [1, 1, 1, 1, 1, 1, 1], False),  # 19
    Part.BSplineCurve([V(4.433845, -5.458966, 0), V(4.423721, -5.426998, 0), V(4.403253, -5.362369, 0), V(4.400146, -5.29464, 0), V(4.398576, -5.260414, 0)], [4, 1, 4], [0, 0.989298466, 2], False, 3, [1, 1, 1, 1, 1], False),  # 20
    Part.BSplineCurve([V(5.326025, -6.416458, 0), V(5.272789, -6.387773, 0), V(5.168173, -6.331401, 0), V(5.023286, -6.2325, 0), V(4.890263, -6.126681, 0), V(4.770778, -6.011632, 0), V(4.665656, -5.886578, 0), V(4.573993, -5.752632, 0), V(4.49459, -5.610412, 0), V(4.454125, -5.509526, 0), V(4.433845, -5.458966, 0)], [4, 1, 1, 1, 1, 1, 1, 1, 4], [0, 1.082087955, 2.12647599, 3.135824101, 4.122733023, 5.090990016, 6.055441831, 7.025454846, 8], False, 3, [1, 1, 1, 1, 1, 1, 1, 1, 1, 1, 1], False),  # 21
    Part.BSplineCurve([V(6.614002, -6.703837, 0), V(6.555184, -6.703341, 0), V(6.438669, -6.702359, 0), V(6.266544, -6.686756, 0), V(6.098546, -6.66522, 0), V(5.935017, -6.633611, 0), V(5.775632, -6.593573, 0), V(5.621265, -6.542963, 0), V(5.470181, -6.486919, 0), V(5.374004, -6.43991, 0), V(5.326025, -6.416458, 0)], [4, 1, 1, 1, 1, 1, 1, 1, 4], [0, 1.05965718, 2.099101179, 3.112385412, 4.111224021, 5.099027455, 6.071848788, 7.038096178, 8], False, 3, [1, 1, 1, 1, 1, 1, 1, 1, 1, 1, 1], False),  # 22
    Part.BSplineCurve([V(8.913029, -4.57593, 0), V(8.911078, -4.648762, 0), V(8.907228, -4.792502, 0), V(8.874979, -5.003549, 0), V(8.82296, -5.205982, 0), V(8.748961, -5.399447, 0), V(8.654519, -5.585062, 0), V(8.53745, -5.761296, 0), V(8.400436, -5.929609, 0), V(8.2449, -6.087683, 0), V(8.074009, -6.231143, 0), V(7.892336, -6.357851, 0), V(7.7019, -6.465314, 0), V(7.501108, -6.551899, 0), V(7.292133, -6.62011, 0), V(7.073742, -6.667787, 0), V(6.847016, -6.699539, 0), V(6.692489, -6.702389, 0), V(6.614002, -6.703837, 0)], [4, 1, 1, 1, 1, 1, 1, 1, 1, 1, 1, 1, 1, 1, 1, 1, 4], [0, 1.002212465, 1.977974553, 2.931743396, 3.874694811, 4.82372372, 5.793001409, 6.781622883, 7.807418376, 8.841256573, 9.848957519, 10.852728399, 11.846063664, 12.854548786, 13.874037145, 14.920192732, 16], False, 3, [1, 1, 1, 1, 1, 1, 1, 1, 1, 1, 1, 1, 1, 1, 1, 1, 1, 1, 1], False),  # 23
], False)
sketch8.addConstraint([
    Sketcher.Constraint("Block", 0),
    Sketcher.Constraint("Block", 1),
    Sketcher.Constraint("Block", 2),
    Sketcher.Constraint("Block", 3),
    Sketcher.Constraint("Block", 4),
    Sketcher.Constraint("Block", 5),
    Sketcher.Constraint("Block", 6),
    Sketcher.Constraint("Block", 7),
    Sketcher.Constraint("Block", 8),
    Sketcher.Constraint("Block", 9),
    Sketcher.Constraint("Block", 10),
    Sketcher.Constraint("Block", 11),
    Sketcher.Constraint("Block", 12),
    Sketcher.Constraint("Block", 13),
    Sketcher.Constraint("Block", 14),
    Sketcher.Constraint("Block", 15),
    Sketcher.Constraint("Block", 16),
    Sketcher.Constraint("Block", 17),
    Sketcher.Constraint("Block", 18),
    Sketcher.Constraint("Block", 19),
    Sketcher.Constraint("Block", 20),
    Sketcher.Constraint("Block", 21),
    Sketcher.Constraint("Block", 22),
    Sketcher.Constraint("Block", 23),
])
pocket5 = body.newObject("PartDesign::Pocket", "Pocket004")
pocket5.Profile = sketch8
pocket5.Length = 1

doc.recompute()
